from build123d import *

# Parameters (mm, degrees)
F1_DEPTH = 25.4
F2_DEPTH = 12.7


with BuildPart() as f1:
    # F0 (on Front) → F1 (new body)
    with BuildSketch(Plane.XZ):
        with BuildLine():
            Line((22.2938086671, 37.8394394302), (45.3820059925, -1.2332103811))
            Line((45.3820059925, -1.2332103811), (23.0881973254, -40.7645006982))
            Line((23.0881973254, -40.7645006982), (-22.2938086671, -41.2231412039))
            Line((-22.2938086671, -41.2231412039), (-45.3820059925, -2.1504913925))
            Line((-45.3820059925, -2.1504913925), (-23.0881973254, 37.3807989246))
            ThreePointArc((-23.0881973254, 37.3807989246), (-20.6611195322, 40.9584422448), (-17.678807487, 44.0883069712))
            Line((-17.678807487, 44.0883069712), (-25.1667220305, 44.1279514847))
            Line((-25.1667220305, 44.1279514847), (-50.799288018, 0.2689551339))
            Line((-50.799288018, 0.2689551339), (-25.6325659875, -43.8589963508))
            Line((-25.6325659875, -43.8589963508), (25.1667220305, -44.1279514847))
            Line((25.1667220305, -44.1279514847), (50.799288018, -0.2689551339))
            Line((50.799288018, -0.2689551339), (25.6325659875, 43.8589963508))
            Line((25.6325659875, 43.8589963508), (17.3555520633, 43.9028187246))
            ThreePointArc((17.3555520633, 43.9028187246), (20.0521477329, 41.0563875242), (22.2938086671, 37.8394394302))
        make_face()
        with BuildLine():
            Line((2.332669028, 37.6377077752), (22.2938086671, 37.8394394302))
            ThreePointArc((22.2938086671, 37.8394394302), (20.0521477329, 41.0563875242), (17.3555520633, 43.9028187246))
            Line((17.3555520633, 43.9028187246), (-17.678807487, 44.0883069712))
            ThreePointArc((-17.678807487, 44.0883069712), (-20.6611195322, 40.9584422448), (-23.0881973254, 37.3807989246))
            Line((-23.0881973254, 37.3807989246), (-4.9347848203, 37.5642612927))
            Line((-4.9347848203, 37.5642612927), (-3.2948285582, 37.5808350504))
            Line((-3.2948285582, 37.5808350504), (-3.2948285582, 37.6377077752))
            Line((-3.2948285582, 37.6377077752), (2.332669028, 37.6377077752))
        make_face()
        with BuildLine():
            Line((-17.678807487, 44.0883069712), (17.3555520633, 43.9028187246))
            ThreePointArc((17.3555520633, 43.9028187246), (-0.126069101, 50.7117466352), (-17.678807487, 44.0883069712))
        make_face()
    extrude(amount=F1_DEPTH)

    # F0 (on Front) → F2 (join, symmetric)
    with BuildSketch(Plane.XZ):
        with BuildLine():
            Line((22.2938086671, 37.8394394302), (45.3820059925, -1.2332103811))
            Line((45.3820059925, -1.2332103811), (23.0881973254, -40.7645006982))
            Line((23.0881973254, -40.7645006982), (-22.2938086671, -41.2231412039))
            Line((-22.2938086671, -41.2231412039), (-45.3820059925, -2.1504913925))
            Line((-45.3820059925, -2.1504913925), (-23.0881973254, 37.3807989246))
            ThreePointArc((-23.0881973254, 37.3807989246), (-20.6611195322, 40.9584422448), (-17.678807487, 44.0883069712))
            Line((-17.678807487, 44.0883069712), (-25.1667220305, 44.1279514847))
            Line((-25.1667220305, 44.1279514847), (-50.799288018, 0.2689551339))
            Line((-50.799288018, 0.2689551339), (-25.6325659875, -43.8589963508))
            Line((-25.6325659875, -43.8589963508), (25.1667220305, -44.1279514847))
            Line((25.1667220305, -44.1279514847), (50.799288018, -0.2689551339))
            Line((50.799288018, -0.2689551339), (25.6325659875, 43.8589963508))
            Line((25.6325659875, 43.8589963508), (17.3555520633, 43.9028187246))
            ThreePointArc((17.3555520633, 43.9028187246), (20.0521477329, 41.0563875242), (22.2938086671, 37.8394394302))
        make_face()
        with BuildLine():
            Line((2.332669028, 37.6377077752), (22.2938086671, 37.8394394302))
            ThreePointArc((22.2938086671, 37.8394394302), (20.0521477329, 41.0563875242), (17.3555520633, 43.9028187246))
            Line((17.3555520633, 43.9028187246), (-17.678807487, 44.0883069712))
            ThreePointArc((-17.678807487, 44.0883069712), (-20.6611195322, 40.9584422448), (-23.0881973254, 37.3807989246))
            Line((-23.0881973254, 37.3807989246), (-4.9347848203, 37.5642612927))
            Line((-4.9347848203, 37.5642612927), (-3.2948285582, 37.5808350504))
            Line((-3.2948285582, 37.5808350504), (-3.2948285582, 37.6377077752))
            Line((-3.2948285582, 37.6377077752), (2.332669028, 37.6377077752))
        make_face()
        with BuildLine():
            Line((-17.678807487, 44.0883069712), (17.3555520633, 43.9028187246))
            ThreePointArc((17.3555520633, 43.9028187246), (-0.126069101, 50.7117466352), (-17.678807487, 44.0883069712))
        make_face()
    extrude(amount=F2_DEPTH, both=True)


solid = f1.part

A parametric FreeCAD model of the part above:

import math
import FreeCAD as App
import Part
import Sketcher
from FreeCAD import Vector
Q = App.Units.Quantity

doc = App.newDocument("Part")
body = doc.addObject("PartDesign::Body", "Body")

# Sketch on XZ plane
sketch1 = body.newObject("Sketcher::SketchObject", "Sketch")
sketch1.AttachmentSupport = (doc.getObject("XZ_Plane"), [""])
sketch1.MapMode = "FlatFace"
sketch1.addGeometry([
    Part.LineSegment(Vector(-17.68, 44.09, 0), Vector(-25.17, 44.13, 0)),  # 0
    Part.LineSegment(Vector(-25.17, 44.13, 0), Vector(-50.8, 0.27, 0)),  # 1
    Part.LineSegment(Vector(-50.8, 0.27, 0), Vector(-25.63, -43.86, 0)),  # 2
    Part.LineSegment(Vector(-25.63, -43.86, 0), Vector(25.17, -44.13, 0)),  # 3
    Part.LineSegment(Vector(25.17, -44.13, 0), Vector(50.8, -0.27, 0)),  # 4
    Part.LineSegment(Vector(50.8, -0.27, 0), Vector(25.63, 43.86, 0)),  # 5
    Part.LineSegment(Vector(25.63, 43.86, 0), Vector(17.36, 43.9, 0)),  # 6
    Part.ArcOfCircle(Part.Circle(Vector(-0.26, 24.51, 0), Vector(0, 0, 1), 26.2), math.radians(48), math.radians(132)),  # 7
    Part.LineSegment(Vector(22.29, 37.84, 0), Vector(45.38, -1.23, 0)),  # 8
    Part.LineSegment(Vector(45.38, -1.23, 0), Vector(23.09, -40.76, 0)),  # 9
    Part.LineSegment(Vector(23.09, -40.76, 0), Vector(-22.29, -41.22, 0)),  # 10
    Part.LineSegment(Vector(-22.29, -41.22, 0), Vector(-45.38, -2.15, 0)),  # 11
    Part.LineSegment(Vector(-45.38, -2.15, 0), Vector(-23.09, 37.38, 0)),  # 12
    Part.LineSegment(Vector(-23.09, 37.38, 0), Vector(-4.93, 37.56, 0)),  # 13
    Part.LineSegment(Vector(-4.93, 37.56, 0), Vector(-3.29, 37.58, 0)),  # 14
    Part.LineSegment(Vector(-3.29, 37.58, 0), Vector(-3.29, 37.64, 0)),  # 15
    Part.LineSegment(Vector(-3.29, 37.64, 0), Vector(2.33, 37.64, 0)),  # 16
    Part.LineSegment(Vector(2.33, 37.64, 0), Vector(22.29, 37.84, 0)),  # 17
], False)
sketch1.addConstraint([
    Sketcher.Constraint("Coincident", 0, 2, 1, 1),
    Sketcher.Constraint("Coincident", 1, 2, 2, 1),
    Sketcher.Constraint("Coincident", 2, 2, 3, 1),
    Sketcher.Constraint("Coincident", 3, 2, 4, 1),
    Sketcher.Constraint("Coincident", 4, 2, 5, 1),
    Sketcher.Constraint("Coincident", 5, 2, 6, 1),
    Sketcher.Constraint("Coincident", 6, 2, 7, 1),
    Sketcher.Constraint("Coincident", 7, 2, 0, 1),
    Sketcher.Constraint("Coincident", 8, 2, 9, 1),
    Sketcher.Constraint("Coincident", 9, 2, 10, 1),
    Sketcher.Constraint("Coincident", 10, 2, 11, 1),
    Sketcher.Constraint("Coincident", 11, 2, 12, 1),
    Sketcher.Constraint("Coincident", 12, 2, 13, 1),
    Sketcher.Constraint("Coincident", 13, 2, 14, 1),
    Sketcher.Constraint("Coincident", 14, 2, 15, 1),
    Sketcher.Constraint("Coincident", 15, 2, 16, 1),
    Sketcher.Constraint("Coincident", 16, 2, 17, 1),
    Sketcher.Constraint("Coincident", 17, 2, 8, 1),
    Sketcher.Constraint("Vertical", 15),
    Sketcher.Constraint("Horizontal", 16),
    Sketcher.Constraint("Symmetric", 0, 2, 3, 2, -1, 1),
    Sketcher.Constraint("Symmetric", 1, 2, 4, 2, -1, 1),
    Sketcher.Constraint("Symmetric", 2, 2, 5, 2, -1, 1),
    Sketcher.Constraint("Parallel", 0, 3),
    Sketcher.Constraint("Parallel", 3, 6),
    Sketcher.Constraint("Parallel", 8, 11),
    Sketcher.Constraint("Parallel", 9, 12),
    Sketcher.Constraint("Parallel", 10, 13),
    Sketcher.Constraint("Parallel", 13, 14),
    Sketcher.Constraint("Parallel", 14, 17),
    Sketcher.Constraint("Equal", 1, 2),
    Sketcher.Constraint("Equal", 2, 3),
    Sketcher.Constraint("Equal", 8, 9),
    Sketcher.Constraint("Equal", 9, 10),
    Sketcher.Constraint("Equal", 10, 11),
    Sketcher.Constraint("Equal", 11, 12),
    Sketcher.Constraint("Distance", 1, Q("2 in")),
    Sketcher.Constraint("Radius", 7, 26.202651),
    Sketcher.Constraint("DistanceY", 9, 2, -1, 1, 40.764501),
    Sketcher.Constraint("DistanceY", -1, 1, 12, 2, 37.380799),
    Sketcher.Constraint("DistanceX", 12, 2, 7, 3, 22.823401),
    Sketcher.Constraint("DistanceY", 7, 3, 13, 2, 13.054799),
    Sketcher.Constraint("DistanceY", 15, 2, 7, 2, 6.450599),
    Sketcher.Constraint("Distance", 0, 7.488019),
    Sketcher.Constraint("Distance", 6, 8.27713),
    Sketcher.Constraint("Distance", 13, 18.15434),
    Sketcher.Constraint("Distance", 14, 1.64004),
    Sketcher.Constraint("Distance", 17, 19.962159),
    Sketcher.Constraint("DistanceX", 16, 1, 16, 2, 5.627498),
    Sketcher.Constraint("DistanceY", 15, 1, 15, 2, 0.056873),
    Sketcher.Constraint("DistanceX", 1, 2, -1, 1, 50.799288),
    Sketcher.Constraint("DistanceY", 8, 2, -1, 1, 1.23321),
])
pad1 = body.newObject("PartDesign::Pad", "Pad")
pad1.Profile = sketch1
pad1.Length = Q("1 in")

# Sketch on XZ plane
sketch2 = body.newObject("Sketcher::SketchObject", "Sketch001")
sketch2.AttachmentSupport = (doc.getObject("XZ_Plane"), [""])
sketch2.MapMode = "FlatFace"
sketch2.addGeometry([
    Part.LineSegment(Vector(-17.68, 44.09, 0), Vector(-25.17, 44.13, 0)),  # 0
    Part.LineSegment(Vector(-25.17, 44.13, 0), Vector(-50.8, 0.27, 0)),  # 1
    Part.LineSegment(Vector(-50.8, 0.27, 0), Vector(-25.63, -43.86, 0)),  # 2
    Part.LineSegment(Vector(-25.63, -43.86, 0), Vector(25.17, -44.13, 0)),  # 3
    Part.LineSegment(Vector(25.17, -44.13, 0), Vector(50.8, -0.27, 0)),  # 4
    Part.LineSegment(Vector(50.8, -0.27, 0), Vector(25.63, 43.86, 0)),  # 5
    Part.LineSegment(Vector(25.63, 43.86, 0), Vector(17.36, 43.9, 0)),  # 6
    Part.ArcOfCircle(Part.Circle(Vector(-0.26, 24.51, 0), Vector(0, 0, 1), 26.2), math.radians(48), math.radians(132)),  # 7
    Part.LineSegment(Vector(22.29, 37.84, 0), Vector(45.38, -1.23, 0)),  # 8
    Part.LineSegment(Vector(45.38, -1.23, 0), Vector(23.09, -40.76, 0)),  # 9
    Part.LineSegment(Vector(23.09, -40.76, 0), Vector(-22.29, -41.22, 0)),  # 10
    Part.LineSegment(Vector(-22.29, -41.22, 0), Vector(-45.38, -2.15, 0)),  # 11
    Part.LineSegment(Vector(-45.38, -2.15, 0), Vector(-23.09, 37.38, 0)),  # 12
    Part.LineSegment(Vector(-23.09, 37.38, 0), Vector(-4.93, 37.56, 0)),  # 13
    Part.LineSegment(Vector(-4.93, 37.56, 0), Vector(-3.29, 37.58, 0)),  # 14
    Part.LineSegment(Vector(-3.29, 37.58, 0), Vector(-3.29, 37.64, 0)),  # 15
    Part.LineSegment(Vector(-3.29, 37.64, 0), Vector(2.33, 37.64, 0)),  # 16
    Part.LineSegment(Vector(2.33, 37.64, 0), Vector(22.29, 37.84, 0)),  # 17
], False)
sketch2.addConstraint([
    Sketcher.Constraint("Coincident", 0, 2, 1, 1),
    Sketcher.Constraint("Coincident", 1, 2, 2, 1),
    Sketcher.Constraint("Coincident", 2, 2, 3, 1),
    Sketcher.Constraint("Coincident", 3, 2, 4, 1),
    Sketcher.Constraint("Coincident", 4, 2, 5, 1),
    Sketcher.Constraint("Coincident", 5, 2, 6, 1),
    Sketcher.Constraint("Coincident", 6, 2, 7, 1),
    Sketcher.Constraint("Coincident", 7, 2, 0, 1),
    Sketcher.Constraint("Coincident", 8, 2, 9, 1),
    Sketcher.Constraint("Coincident", 9, 2, 10, 1),
    Sketcher.Constraint("Coincident", 10, 2, 11, 1),
    Sketcher.Constraint("Coincident", 11, 2, 12, 1),
    Sketcher.Constraint("Coincident", 12, 2, 13, 1),
    Sketcher.Constraint("Coincident", 13, 2, 14, 1),
    Sketcher.Constraint("Coincident", 14, 2, 15, 1),
    Sketcher.Constraint("Coincident", 15, 2, 16, 1),
    Sketcher.Constraint("Coincident", 16, 2, 17, 1),
    Sketcher.Constraint("Coincident", 17, 2, 8, 1),
    Sketcher.Constraint("Vertical", 15),
    Sketcher.Constraint("Horizontal", 16),
    Sketcher.Constraint("Symmetric", 0, 2, 3, 2, -1, 1),
    Sketcher.Constraint("Symmetric", 1, 2, 4, 2, -1, 1),
    Sketcher.Constraint("Symmetric", 2, 2, 5, 2, -1, 1),
    Sketcher.Constraint("Parallel", 0, 3),
    Sketcher.Constraint("Parallel", 3, 6),
    Sketcher.Constraint("Parallel", 8, 11),
    Sketcher.Constraint("Parallel", 9, 12),
    Sketcher.Constraint("Parallel", 10, 13),
    Sketcher.Constraint("Parallel", 13, 14),
    Sketcher.Constraint("Parallel", 14, 17),
    Sketcher.Constraint("Equal", 1, 2),
    Sketcher.Constraint("Equal", 2, 3),
    Sketcher.Constraint("Equal", 8, 9),
    Sketcher.Constraint("Equal", 9, 10),
    Sketcher.Constraint("Equal", 10, 11),
    Sketcher.Constraint("Equal", 11, 12),
    Sketcher.Constraint("Distance", 1, Q("2 in")),
    Sketcher.Constraint("Radius", 7, 26.202651),
    Sketcher.Constraint("DistanceY", 9, 2, -1, 1, 40.764501),
    Sketcher.Constraint("DistanceY", -1, 1, 12, 2, 37.380799),
    Sketcher.Constraint("DistanceX", 12, 2, 7, 3, 22.823401),
    Sketcher.Constraint("DistanceY", 7, 3, 13, 2, 13.054799),
    Sketcher.Constraint("DistanceY", 15, 2, 7, 2, 6.450599),
    Sketcher.Constraint("Distance", 0, 7.488019),
    Sketcher.Constraint("Distance", 6, 8.27713),
    Sketcher.Constraint("Distance", 13, 18.15434),
    Sketcher.Constraint("Distance", 14, 1.64004),
    Sketcher.Constraint("Distance", 17, 19.962159),
    Sketcher.Constraint("DistanceX", 16, 1, 16, 2, 5.627498),
    Sketcher.Constraint("DistanceY", 15, 1, 15, 2, 0.056873),
    Sketcher.Constraint("DistanceX", 1, 2, -1, 1, 50.799288),
    Sketcher.Constraint("DistanceY", 8, 2, -1, 1, 1.23321),
])
pad2 = body.newObject("PartDesign::Pad", "Pad001")
pad2.Profile = sketch2
pad2.Length = Q("1 in")
pad2.Midplane = True

doc.recompute()
